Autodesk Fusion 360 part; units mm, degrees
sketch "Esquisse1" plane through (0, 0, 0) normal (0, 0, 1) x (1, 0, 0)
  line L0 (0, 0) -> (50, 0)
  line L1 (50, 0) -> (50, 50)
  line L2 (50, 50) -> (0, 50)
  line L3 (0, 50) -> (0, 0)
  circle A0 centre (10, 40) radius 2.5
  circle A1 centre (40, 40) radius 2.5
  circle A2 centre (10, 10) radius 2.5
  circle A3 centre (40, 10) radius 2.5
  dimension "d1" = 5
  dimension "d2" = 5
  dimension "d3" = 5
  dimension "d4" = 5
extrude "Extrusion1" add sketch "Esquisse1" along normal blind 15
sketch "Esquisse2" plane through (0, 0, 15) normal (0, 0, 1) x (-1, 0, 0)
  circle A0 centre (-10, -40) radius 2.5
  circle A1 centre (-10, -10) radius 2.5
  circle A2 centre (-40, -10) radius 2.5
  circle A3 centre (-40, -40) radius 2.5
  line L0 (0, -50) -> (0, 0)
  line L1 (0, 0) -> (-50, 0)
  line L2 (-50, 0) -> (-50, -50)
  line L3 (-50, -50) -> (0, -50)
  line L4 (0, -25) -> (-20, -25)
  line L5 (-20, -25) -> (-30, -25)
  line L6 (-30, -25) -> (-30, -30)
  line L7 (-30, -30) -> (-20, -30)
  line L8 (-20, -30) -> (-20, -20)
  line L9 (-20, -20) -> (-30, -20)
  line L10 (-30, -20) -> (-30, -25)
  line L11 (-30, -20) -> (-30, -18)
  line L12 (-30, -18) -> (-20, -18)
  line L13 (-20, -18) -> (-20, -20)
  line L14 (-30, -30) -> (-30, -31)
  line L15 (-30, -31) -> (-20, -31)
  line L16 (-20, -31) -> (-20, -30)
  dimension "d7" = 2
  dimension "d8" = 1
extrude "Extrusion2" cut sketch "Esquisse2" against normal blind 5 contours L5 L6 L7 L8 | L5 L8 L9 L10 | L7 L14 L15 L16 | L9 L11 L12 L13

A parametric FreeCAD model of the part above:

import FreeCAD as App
import Part
import Sketcher
from FreeCAD import Vector
Q = App.Units.Quantity

doc = App.newDocument("Part")
body = doc.addObject("PartDesign::Body", "Body")

# Sketch on XY plane
sketch1 = body.newObject("Sketcher::SketchObject", "Sketch")
sketch1.AttachmentSupport = (doc.getObject("XY_Plane"), [""])
sketch1.MapMode = "FlatFace"
sketch1.addGeometry([
    Part.LineSegment(Vector(0, 50, 0), Vector(0, 0, 0)),  # 0
    Part.LineSegment(Vector(0, 0, 0), Vector(50, 0, 0)),  # 1
    Part.LineSegment(Vector(50, 0, 0), Vector(50, 50, 0)),  # 2
    Part.LineSegment(Vector(50, 50, 0), Vector(0, 50, 0)),  # 3
    Part.Circle(Vector(10, 10, 0), Vector(0, 0, 1), 2.5),  # 4
    Part.Circle(Vector(40, 10, 0), Vector(0, 0, 1), 2.5),  # 5
    Part.Circle(Vector(10, 40, 0), Vector(0, 0, 1), 2.5),  # 6
    Part.Circle(Vector(40, 40, 0), Vector(0, 0, 1), 2.5),  # 7
], False)
sketch1.addConstraint([
    Sketcher.Constraint("Coincident", 0, 2, 1, 1),
    Sketcher.Constraint("Coincident", 1, 2, 2, 1),
    Sketcher.Constraint("Coincident", 2, 2, 3, 1),
    Sketcher.Constraint("Coincident", 3, 2, 0, 1),
    Sketcher.Constraint("Vertical", 0),
    Sketcher.Constraint("Horizontal", 1),
    Sketcher.Constraint("Vertical", 2),
    Sketcher.Constraint("Horizontal", 3),
    Sketcher.Constraint("Coincident", 0, 2, -1, 1),
    Sketcher.Constraint("Equal", 4, 5),
    Sketcher.Constraint("Equal", 5, 6),
    Sketcher.Constraint("Equal", 6, 7),
    Sketcher.Constraint("Horizontal", 4, 3, 5, 3),
    Sketcher.Constraint("Horizontal", 6, 3, 7, 3),
    Sketcher.Constraint("Vertical", 4, 3, 6, 3),
    Sketcher.Constraint("Vertical", 5, 3, 7, 3),
    Sketcher.Constraint("Equal", 3, 0),
    Sketcher.Constraint("Diameter", 4, Q("5 mm")),
    Sketcher.Constraint("DistanceX", 1, 1, 1, 2, Q("50 mm")),
    Sketcher.Constraint("DistanceX", -1, 1, 4, 3, Q("10 mm")),
    Sketcher.Constraint("DistanceY", -1, 1, 4, 3, Q("10 mm")),
    Sketcher.Constraint("DistanceX", -1, 1, 5, 3, Q("40 mm")),
    Sketcher.Constraint("DistanceY", -1, 1, 6, 3, Q("40 mm")),
])
pad1 = body.newObject("PartDesign::Pad", "Pad")
pad1.Profile = sketch1
pad1.Length = 15

# Sketch on XY plane
sketch2 = body.newObject("Sketcher::SketchObject", "Sketch001")
sketch2.AttachmentSupport = (doc.getObject("XY_Plane"), [""])
sketch2.MapMode = "FlatFace"
sketch2.AttachmentOffset = App.Placement(Vector(0, 0, 15), App.Rotation())
sketch2.addGeometry([
    Part.LineSegment(Vector(20, 18, 0), Vector(30, 18, 0)),
    Part.LineSegment(Vector(30, 18, 0), Vector(30, 31, 0)),
    Part.LineSegment(Vector(30, 31, 0), Vector(20, 31, 0)),
    Part.LineSegment(Vector(20, 31, 0), Vector(20, 18, 0)),
], False)
sketch2.addConstraint([
    Sketcher.Constraint("Coincident", 0, 2, 1, 1),
    Sketcher.Constraint("Coincident", 1, 2, 2, 1),
    Sketcher.Constraint("Coincident", 2, 2, 3, 1),
    Sketcher.Constraint("Coincident", 3, 2, 0, 1),
    Sketcher.Constraint("Horizontal", 0),
    Sketcher.Constraint("Vertical", 1),
    Sketcher.Constraint("Horizontal", 2),
    Sketcher.Constraint("Vertical", 3),
    Sketcher.Constraint("DistanceX", 0, 1, 0, 2, Q("10 mm")),
    Sketcher.Constraint("DistanceY", 1, 1, 1, 2, Q("13 mm")),
    Sketcher.Constraint("DistanceX", -1, 1, 0, 2, Q("30 mm")),
    Sketcher.Constraint("DistanceY", -1, 1, 0, 2, Q("18 mm")),
])
pocket1 = body.newObject("PartDesign::Pocket", "Pocket")
pocket1.Profile = sketch2
pocket1.Length = 5

doc.recompute()
